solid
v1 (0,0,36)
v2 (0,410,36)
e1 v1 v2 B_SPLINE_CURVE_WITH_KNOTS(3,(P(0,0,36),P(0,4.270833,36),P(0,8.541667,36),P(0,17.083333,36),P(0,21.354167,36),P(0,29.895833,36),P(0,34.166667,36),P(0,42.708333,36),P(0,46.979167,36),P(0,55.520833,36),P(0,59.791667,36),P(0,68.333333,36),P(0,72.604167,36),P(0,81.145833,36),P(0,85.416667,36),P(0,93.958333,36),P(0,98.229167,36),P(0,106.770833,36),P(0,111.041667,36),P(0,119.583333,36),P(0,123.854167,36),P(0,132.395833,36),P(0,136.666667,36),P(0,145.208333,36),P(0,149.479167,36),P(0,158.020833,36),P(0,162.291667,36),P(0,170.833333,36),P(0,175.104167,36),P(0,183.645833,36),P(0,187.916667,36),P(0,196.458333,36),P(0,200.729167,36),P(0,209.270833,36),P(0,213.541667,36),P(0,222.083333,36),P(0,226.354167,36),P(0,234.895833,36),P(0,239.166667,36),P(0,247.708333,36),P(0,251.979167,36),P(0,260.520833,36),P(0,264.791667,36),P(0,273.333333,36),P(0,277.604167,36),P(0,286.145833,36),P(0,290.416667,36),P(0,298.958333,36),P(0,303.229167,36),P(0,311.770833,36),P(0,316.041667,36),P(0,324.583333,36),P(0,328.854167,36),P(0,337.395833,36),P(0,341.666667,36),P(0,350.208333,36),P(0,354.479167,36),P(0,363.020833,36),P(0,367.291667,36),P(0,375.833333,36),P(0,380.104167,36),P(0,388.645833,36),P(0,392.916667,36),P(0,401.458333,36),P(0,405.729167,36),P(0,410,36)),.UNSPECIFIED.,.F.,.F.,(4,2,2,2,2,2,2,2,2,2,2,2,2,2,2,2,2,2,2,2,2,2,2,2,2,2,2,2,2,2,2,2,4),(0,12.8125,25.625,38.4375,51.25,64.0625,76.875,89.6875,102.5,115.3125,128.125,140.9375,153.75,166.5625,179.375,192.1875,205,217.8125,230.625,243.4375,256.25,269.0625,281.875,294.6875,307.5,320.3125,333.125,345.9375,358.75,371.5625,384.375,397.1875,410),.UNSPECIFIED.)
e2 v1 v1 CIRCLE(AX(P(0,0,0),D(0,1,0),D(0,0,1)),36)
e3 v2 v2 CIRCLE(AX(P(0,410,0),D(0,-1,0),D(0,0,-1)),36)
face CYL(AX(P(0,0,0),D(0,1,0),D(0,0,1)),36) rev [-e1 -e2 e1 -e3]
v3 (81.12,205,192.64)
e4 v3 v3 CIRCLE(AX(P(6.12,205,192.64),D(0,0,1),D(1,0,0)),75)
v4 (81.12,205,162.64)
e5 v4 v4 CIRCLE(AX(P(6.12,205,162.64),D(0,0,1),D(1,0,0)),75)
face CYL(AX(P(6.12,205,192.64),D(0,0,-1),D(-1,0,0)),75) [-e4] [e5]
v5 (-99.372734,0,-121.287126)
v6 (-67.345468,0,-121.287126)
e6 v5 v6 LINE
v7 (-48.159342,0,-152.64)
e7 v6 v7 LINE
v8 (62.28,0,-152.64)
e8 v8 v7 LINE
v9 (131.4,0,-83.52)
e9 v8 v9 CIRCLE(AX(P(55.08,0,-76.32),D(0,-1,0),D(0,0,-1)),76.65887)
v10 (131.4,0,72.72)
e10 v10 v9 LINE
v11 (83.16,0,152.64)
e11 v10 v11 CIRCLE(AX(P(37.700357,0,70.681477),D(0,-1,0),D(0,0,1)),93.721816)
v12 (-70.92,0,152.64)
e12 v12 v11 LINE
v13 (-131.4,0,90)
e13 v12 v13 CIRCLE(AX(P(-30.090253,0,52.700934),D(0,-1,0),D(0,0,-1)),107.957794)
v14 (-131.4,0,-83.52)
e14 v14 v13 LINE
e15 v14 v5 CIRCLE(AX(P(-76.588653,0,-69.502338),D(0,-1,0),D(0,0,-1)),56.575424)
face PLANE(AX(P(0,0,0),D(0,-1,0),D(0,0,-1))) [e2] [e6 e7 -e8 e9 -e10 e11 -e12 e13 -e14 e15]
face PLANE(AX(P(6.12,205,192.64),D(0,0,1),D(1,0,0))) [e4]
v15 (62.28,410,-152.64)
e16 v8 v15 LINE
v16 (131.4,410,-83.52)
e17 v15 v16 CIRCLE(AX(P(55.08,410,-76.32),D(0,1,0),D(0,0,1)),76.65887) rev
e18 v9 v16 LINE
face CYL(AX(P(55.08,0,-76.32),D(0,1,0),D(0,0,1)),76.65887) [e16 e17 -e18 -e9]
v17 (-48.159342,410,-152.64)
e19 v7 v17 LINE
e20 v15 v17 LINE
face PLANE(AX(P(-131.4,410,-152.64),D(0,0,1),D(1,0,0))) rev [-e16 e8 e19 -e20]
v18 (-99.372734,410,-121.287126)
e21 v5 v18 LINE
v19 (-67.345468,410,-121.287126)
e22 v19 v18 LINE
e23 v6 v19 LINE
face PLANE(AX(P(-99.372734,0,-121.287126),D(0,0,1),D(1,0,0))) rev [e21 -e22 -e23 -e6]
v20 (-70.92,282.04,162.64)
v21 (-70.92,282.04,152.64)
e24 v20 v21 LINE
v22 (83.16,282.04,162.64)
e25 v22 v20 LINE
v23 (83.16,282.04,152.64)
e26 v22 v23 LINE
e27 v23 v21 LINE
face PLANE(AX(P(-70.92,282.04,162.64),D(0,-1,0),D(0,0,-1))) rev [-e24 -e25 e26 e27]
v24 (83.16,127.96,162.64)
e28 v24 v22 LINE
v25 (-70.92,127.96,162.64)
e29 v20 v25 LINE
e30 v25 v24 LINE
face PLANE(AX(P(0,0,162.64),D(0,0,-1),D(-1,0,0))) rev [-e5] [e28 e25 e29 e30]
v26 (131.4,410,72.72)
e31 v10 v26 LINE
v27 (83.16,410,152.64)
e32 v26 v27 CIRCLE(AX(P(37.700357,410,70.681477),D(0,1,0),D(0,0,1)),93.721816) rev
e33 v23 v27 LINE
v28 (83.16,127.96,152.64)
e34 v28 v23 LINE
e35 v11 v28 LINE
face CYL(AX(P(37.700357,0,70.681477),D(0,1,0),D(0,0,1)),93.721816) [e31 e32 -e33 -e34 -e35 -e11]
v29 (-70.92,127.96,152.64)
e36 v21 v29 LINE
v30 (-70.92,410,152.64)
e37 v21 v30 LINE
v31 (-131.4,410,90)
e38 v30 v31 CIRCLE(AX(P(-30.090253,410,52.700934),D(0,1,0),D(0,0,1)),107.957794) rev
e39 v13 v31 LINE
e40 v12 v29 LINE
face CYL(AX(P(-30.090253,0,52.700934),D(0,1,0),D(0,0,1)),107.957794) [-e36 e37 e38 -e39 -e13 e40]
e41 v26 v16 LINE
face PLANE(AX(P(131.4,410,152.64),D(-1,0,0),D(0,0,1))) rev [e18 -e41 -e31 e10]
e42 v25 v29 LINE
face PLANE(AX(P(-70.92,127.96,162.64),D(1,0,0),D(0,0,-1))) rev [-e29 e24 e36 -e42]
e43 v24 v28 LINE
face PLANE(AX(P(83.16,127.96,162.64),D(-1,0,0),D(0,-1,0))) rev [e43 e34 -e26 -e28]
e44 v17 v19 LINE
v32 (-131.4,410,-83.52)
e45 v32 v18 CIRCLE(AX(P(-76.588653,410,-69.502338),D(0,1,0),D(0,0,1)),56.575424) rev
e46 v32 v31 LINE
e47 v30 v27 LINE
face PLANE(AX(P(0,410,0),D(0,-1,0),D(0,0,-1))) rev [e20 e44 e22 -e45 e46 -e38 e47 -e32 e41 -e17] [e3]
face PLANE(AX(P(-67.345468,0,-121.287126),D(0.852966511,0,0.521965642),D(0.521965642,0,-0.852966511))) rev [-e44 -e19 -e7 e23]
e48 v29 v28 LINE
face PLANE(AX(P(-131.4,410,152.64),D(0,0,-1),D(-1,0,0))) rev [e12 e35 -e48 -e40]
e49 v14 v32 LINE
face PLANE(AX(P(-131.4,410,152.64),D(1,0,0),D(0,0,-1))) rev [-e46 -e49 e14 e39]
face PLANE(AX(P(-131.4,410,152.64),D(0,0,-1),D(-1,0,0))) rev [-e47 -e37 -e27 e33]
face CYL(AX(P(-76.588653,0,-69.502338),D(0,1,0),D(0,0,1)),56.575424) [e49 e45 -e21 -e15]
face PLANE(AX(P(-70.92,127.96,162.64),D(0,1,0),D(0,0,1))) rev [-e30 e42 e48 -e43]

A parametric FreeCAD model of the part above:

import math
import FreeCAD as App
import Part
import Sketcher

V = App.Vector

doc = App.newDocument("Part")
body = doc.addObject("PartDesign::Body", "Body")

sketch1 = body.newObject("Sketcher::SketchObject", "Sketch")
sketch1.AttachmentSupport = (doc.getObject("XZ_Plane"), [""])
sketch1.MapMode = "FlatFace"
sketch1.addGeometry([
    Part.LineSegment(V(-131, -153, 0), V(-131, 153, 0)),
    Part.LineSegment(V(-131, 153, 0), V(131, 153, 0)),
    Part.LineSegment(V(131, 153, 0), V(131, -153, 0)),
    Part.LineSegment(V(131, -153, 0), V(-131, -153, 0)),
], False)
sketch1.addConstraint([
    Sketcher.Constraint("Coincident", 0, 2, 1, 1),
    Sketcher.Constraint("Coincident", 1, 2, 2, 1),
    Sketcher.Constraint("Coincident", 2, 2, 3, 1),
    Sketcher.Constraint("Coincident", 3, 2, 0, 1),
    Sketcher.Constraint("Vertical", 0),
    Sketcher.Constraint("Horizontal", 1),
    Sketcher.Constraint("Vertical", 2),
    Sketcher.Constraint("Horizontal", 3),
    Sketcher.Constraint("Symmetric", 0, 2, 2, 2, -1, 1),
    Sketcher.Constraint("DistanceX", 1, 1, 1, 2, 262.8),
    Sketcher.Constraint("DistanceY", 0, 1, 0, 2, 305.28),
])
pad1 = body.newObject("PartDesign::Pad", "Pad")
pad1.Profile = sketch1
pad1.Length = 410
pad1.Reversed = True

sketch2 = body.newObject("Sketcher::SketchObject", "Sketch001")
sketch2.AttachmentSupport = (doc.getObject("XZ_Plane"), [""])
sketch2.MapMode = "FlatFace"
sketch2.AttachmentOffset = App.Placement(V(0, 0, -410), App.Rotation())
sketch2.addGeometry([
    Part.LineSegment(V(-131, 90, 0), V(-131, 153, 0)),
    Part.LineSegment(V(-131, 153, 0), V(-71, 153, 0)),
    Part.ArcOfCircle(Part.Circle(V(-30, 53, 0), V(0, 0, 1), 108), math.radians(112), math.radians(160)),
    Part.LineSegment(V(83, 153, 0), V(131, 153, 0)),
    Part.LineSegment(V(131, 153, 0), V(131, 73, 0)),
    Part.ArcOfCircle(Part.Circle(V(38, 71, 0), V(0, 0, 1), 94), math.radians(1), math.radians(61)),
    Part.LineSegment(V(-99, -121, 0), V(-67, -121, 0)),
    Part.LineSegment(V(-67, -121, 0), V(-48, -153, 0)),
    Part.LineSegment(V(-48, -153, 0), V(-131, -153, 0)),
    Part.LineSegment(V(-131, -153, 0), V(-131, -84, 0)),
    Part.ArcOfCircle(Part.Circle(V(-77, -70, 0), V(0, 0, 1), 57), math.radians(-166), math.radians(-114)),
    Part.LineSegment(V(131, -84, 0), V(131, -153, 0)),
    Part.LineSegment(V(131, -153, 0), V(62, -153, 0)),
    Part.ArcOfCircle(Part.Circle(V(55, -76, 0), V(0, 0, 1), 77), math.radians(-85), math.radians(-5)),
], False)
sketch2.addConstraint([
    Sketcher.Constraint("Coincident", 0, 2, 1, 1),
    Sketcher.Constraint("Coincident", 1, 2, 2, 1),
    Sketcher.Constraint("Coincident", 2, 2, 0, 1),
    Sketcher.Constraint("Coincident", 3, 2, 4, 1),
    Sketcher.Constraint("Coincident", 4, 2, 5, 1),
    Sketcher.Constraint("Coincident", 5, 2, 3, 1),
    Sketcher.Constraint("Coincident", 6, 2, 7, 1),
    Sketcher.Constraint("Coincident", 7, 2, 8, 1),
    Sketcher.Constraint("Coincident", 8, 2, 9, 1),
    Sketcher.Constraint("Coincident", 9, 2, 10, 1),
    Sketcher.Constraint("Coincident", 10, 2, 6, 1),
    Sketcher.Constraint("Coincident", 11, 2, 12, 1),
    Sketcher.Constraint("Coincident", 12, 2, 13, 1),
    Sketcher.Constraint("Coincident", 13, 2, 11, 1),
    Sketcher.Constraint("Vertical", 0),
    Sketcher.Constraint("Horizontal", 1),
    Sketcher.Constraint("Horizontal", 3),
    Sketcher.Constraint("Vertical", 4),
    Sketcher.Constraint("Horizontal", 6),
    Sketcher.Constraint("Horizontal", 8),
    Sketcher.Constraint("Vertical", 9),
    Sketcher.Constraint("Vertical", 11),
    Sketcher.Constraint("Horizontal", 12),
    Sketcher.Constraint("Symmetric", 3, 2, 8, 2, -1, 1),
    Sketcher.Constraint("Symmetric", 0, 2, 11, 2, -1, 1),
    Sketcher.Constraint("Symmetric", 0, 2, 3, 2, -2),
    Sketcher.Constraint("Horizontal", 9, 2, 13, 2),
    Sketcher.Constraint("Equal", 12, 9),
    Sketcher.Constraint("DistanceY", -1, 1, 2, 2, 90.0),
    Sketcher.Constraint("DistanceX", 1, 2, 13, 3, 126.0),
    Sketcher.Constraint("DistanceX", 1, 1, 1, 2, 60.48),
    Sketcher.Constraint("DistanceX", 3, 1, 3, 2, 48.24),
    Sketcher.Constraint("DistanceX", 12, 2, 12, 1, 69.12),
    Sketcher.Constraint("DistanceY", 0, 1, 0, 2, 62.64),
    Sketcher.Constraint("DistanceY", 4, 2, 4, 1, 79.92),
    Sketcher.Constraint("DistanceX", 0, 2, -1, 1, 131.4),
    Sketcher.Constraint("Radius", 2, 107.957794),
    Sketcher.Constraint("Radius", 5, 93.721816),
    Sketcher.Constraint("Radius", 10, 56.575424),
    Sketcher.Constraint("DistanceX", 10, 3, 2, 3, 46.498401),
    Sketcher.Constraint("DistanceX", 7, 2, 5, 3, 85.859699),
    Sketcher.Constraint("Distance", 7, 36.75745),
    Sketcher.Constraint("DistanceX", 6, 1, 6, 2, 32.027266),
])
pocket1 = body.newObject("PartDesign::Pocket", "Pocket")
pocket1.Profile = sketch2
pocket1.Type = "ThroughAll"
pocket1.Midplane = True

sketch3 = body.newObject("Sketcher::SketchObject", "Sketch002")
sketch3.AttachmentSupport = (doc.getObject("XZ_Plane"), [""])
sketch3.MapMode = "FlatFace"
sketch3.AttachmentOffset = App.Placement(V(0, 0, -410), App.Rotation())
sketch3.addGeometry(Part.Circle(V(0, 0, 0), V(0, 0, 1), 36), False)
sketch3.addConstraint([
    Sketcher.Constraint("Coincident", 0, 3, -1, 1),
    Sketcher.Constraint("Diameter", 0, 72.0),
])
pocket2 = body.newObject("PartDesign::Pocket", "Pocket001")
pocket2.Profile = sketch3
pocket2.Type = "ThroughAll"
pocket2.Midplane = True

sketch4 = body.newObject("Sketcher::SketchObject", "Sketch003")
sketch4.AttachmentSupport = (doc.getObject("XY_Plane"), [""])
sketch4.MapMode = "FlatFace"
sketch4.AttachmentOffset = App.Placement(V(0, 0, 152.64), App.Rotation())
sketch4.addGeometry([
    Part.LineSegment(V(-71, 282, 0), V(-71, 128, 0)),
    Part.LineSegment(V(-71, 128, 0), V(83, 128, 0)),
    Part.LineSegment(V(83, 128, 0), V(83, 282, 0)),
    Part.LineSegment(V(83, 282, 0), V(-71, 282, 0)),
], False)
sketch4.addConstraint([
    Sketcher.Constraint("Coincident", 0, 2, 1, 1),
    Sketcher.Constraint("Coincident", 1, 2, 2, 1),
    Sketcher.Constraint("Coincident", 2, 2, 3, 1),
    Sketcher.Constraint("Coincident", 3, 2, 0, 1),
    Sketcher.Constraint("Vertical", 0),
    Sketcher.Constraint("Horizontal", 1),
    Sketcher.Constraint("Vertical", 2),
    Sketcher.Constraint("Horizontal", 3),
    Sketcher.Constraint("Equal", 3, 0),
    Sketcher.Constraint("DistanceX", 1, 1, 1, 2, 154.08),
    Sketcher.Constraint("DistanceX", 0, 2, -1, 1, 70.92),
    Sketcher.Constraint("DistanceY", -1, 1, 0, 2, 127.96),
])
pad2 = body.newObject("PartDesign::Pad", "Pad001")
pad2.Profile = sketch4
pad2.Length = 10

sketch5 = body.newObject("Sketcher::SketchObject", "Sketch004")
sketch5.AttachmentSupport = (doc.getObject("XY_Plane"), [""])
sketch5.MapMode = "FlatFace"
sketch5.AttachmentOffset = App.Placement(V(0, 0, 162.64), App.Rotation())
sketch5.addGeometry(Part.Circle(V(6, 205, 0), V(0, 0, 1), 75), False)
sketch5.addConstraint([
    Sketcher.Constraint("Diameter", 0, 150.0),
    Sketcher.Constraint("DistanceY", -1, 1, 0, 3, 205.0),
    Sketcher.Constraint("DistanceX", -1, 1, 0, 3, 6.12),
])
pad3 = body.newObject("PartDesign::Pad", "Pad002")
pad3.Profile = sketch5
pad3.Length = 30

doc.recompute()
